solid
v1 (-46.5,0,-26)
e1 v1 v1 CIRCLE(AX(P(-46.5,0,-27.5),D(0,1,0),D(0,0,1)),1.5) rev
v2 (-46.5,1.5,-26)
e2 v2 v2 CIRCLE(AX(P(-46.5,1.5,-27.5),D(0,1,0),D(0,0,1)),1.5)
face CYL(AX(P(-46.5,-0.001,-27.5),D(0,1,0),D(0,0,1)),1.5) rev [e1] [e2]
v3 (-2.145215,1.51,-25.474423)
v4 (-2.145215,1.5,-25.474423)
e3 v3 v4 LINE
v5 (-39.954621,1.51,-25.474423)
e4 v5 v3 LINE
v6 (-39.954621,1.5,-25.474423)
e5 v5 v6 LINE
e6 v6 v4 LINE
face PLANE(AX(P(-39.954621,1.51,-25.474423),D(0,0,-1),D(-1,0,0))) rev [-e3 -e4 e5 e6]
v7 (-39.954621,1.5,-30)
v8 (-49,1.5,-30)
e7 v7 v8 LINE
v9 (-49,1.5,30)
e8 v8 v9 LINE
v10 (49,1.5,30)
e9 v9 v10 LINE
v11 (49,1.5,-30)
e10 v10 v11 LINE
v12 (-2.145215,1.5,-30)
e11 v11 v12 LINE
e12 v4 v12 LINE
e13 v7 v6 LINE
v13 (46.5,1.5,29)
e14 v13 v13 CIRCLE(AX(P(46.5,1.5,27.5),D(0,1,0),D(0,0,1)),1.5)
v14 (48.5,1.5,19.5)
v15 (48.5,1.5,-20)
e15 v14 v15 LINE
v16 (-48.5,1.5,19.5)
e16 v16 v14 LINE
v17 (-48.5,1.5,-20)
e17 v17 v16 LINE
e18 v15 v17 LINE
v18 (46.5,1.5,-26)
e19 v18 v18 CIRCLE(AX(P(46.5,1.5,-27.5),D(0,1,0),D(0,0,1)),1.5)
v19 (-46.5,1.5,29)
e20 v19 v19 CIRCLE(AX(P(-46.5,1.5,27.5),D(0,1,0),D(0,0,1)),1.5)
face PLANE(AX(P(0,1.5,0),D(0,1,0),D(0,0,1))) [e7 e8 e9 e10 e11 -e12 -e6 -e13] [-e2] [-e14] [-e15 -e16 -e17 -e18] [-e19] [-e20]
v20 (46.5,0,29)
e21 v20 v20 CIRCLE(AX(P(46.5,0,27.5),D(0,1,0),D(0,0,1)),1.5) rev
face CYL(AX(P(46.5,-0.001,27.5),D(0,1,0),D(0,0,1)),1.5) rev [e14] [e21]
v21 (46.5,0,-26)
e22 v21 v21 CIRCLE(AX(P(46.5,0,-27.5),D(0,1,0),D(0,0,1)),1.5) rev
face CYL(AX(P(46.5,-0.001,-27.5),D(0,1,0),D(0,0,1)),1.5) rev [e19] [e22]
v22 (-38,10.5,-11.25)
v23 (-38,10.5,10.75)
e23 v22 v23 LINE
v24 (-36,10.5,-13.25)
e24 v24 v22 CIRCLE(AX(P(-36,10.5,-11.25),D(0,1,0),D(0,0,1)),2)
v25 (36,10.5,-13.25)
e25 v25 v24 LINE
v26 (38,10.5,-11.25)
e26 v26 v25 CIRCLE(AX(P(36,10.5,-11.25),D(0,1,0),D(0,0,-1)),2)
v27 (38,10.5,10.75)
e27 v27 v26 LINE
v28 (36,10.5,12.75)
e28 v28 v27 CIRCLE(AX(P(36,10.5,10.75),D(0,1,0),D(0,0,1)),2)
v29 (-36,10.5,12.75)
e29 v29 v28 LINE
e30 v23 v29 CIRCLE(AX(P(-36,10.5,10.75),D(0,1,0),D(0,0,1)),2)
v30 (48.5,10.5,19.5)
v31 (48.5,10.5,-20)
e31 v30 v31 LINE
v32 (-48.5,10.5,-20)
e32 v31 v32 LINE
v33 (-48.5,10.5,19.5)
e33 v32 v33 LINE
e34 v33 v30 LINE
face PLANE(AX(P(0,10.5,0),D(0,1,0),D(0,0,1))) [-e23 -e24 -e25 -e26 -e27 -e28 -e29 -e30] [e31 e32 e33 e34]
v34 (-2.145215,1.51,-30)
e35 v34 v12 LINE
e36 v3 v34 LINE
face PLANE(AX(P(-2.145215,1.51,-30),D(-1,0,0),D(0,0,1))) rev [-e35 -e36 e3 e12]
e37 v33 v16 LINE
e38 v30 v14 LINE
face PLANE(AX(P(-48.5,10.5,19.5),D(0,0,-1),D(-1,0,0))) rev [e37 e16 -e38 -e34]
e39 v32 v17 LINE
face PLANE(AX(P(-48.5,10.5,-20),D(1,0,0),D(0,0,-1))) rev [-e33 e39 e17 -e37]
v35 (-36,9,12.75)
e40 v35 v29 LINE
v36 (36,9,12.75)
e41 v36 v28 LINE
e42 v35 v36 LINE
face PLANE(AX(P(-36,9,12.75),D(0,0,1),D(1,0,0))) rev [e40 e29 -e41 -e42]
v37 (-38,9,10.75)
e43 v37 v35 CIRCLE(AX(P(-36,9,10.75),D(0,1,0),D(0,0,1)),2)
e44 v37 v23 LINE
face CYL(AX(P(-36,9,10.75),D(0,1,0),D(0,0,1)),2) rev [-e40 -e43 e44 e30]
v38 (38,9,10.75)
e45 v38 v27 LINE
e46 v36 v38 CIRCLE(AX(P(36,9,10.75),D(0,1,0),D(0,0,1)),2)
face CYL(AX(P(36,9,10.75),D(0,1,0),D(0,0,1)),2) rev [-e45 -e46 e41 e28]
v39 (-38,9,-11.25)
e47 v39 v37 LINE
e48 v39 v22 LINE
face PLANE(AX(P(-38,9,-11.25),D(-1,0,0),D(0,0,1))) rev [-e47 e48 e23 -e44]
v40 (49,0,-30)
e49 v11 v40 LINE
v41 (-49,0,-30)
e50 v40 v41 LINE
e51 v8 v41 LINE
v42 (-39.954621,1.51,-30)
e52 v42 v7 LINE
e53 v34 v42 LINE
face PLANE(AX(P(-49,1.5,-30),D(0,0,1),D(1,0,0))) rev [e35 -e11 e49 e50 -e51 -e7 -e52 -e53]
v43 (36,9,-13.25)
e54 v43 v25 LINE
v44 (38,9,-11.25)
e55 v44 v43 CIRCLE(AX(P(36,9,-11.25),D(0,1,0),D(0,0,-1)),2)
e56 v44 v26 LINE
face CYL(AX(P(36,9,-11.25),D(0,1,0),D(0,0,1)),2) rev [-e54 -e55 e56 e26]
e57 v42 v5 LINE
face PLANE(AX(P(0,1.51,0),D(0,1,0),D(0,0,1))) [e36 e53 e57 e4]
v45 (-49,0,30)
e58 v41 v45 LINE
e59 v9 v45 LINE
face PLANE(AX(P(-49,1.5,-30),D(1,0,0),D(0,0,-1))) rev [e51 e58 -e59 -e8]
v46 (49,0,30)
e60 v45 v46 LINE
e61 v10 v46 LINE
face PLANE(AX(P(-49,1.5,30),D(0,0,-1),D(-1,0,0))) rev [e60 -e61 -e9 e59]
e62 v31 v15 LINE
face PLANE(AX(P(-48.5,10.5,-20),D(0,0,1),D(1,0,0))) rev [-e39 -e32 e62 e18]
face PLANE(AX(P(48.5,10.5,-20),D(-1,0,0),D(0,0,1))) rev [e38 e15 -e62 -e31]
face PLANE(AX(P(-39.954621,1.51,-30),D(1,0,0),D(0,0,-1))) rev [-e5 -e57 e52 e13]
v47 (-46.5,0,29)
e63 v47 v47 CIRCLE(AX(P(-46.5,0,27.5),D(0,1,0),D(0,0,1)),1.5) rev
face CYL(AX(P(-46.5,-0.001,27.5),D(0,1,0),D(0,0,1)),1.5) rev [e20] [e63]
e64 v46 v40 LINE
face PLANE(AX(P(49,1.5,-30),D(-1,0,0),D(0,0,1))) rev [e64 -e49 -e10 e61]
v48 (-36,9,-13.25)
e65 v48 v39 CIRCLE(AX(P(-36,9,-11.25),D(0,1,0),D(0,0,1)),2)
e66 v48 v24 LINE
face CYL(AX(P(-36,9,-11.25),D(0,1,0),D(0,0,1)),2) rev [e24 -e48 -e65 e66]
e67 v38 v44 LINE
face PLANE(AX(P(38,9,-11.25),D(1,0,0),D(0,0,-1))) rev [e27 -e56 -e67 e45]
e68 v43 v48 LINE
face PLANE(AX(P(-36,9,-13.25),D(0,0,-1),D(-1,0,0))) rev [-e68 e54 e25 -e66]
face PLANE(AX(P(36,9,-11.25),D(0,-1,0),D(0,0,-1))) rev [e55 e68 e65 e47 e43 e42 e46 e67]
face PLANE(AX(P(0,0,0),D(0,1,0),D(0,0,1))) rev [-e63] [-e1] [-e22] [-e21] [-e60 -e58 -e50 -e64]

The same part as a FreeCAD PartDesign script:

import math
import FreeCAD as App
import Part
import Sketcher
Q = App.Units.Quantity

doc = App.newDocument("Part")
body = doc.addObject("PartDesign::Body", "Body")

sketch1 = doc.addObject("Sketcher::SketchObject", "Sketch")
body.addObject(sketch1)
sketch1.AttachmentSupport = (doc.XZ_Plane, [""])
sketch1.MapMode = "FlatFace"
sketch1.addGeometry([
    Part.LineSegment(App.Vector(-49, -30, 0), App.Vector(-49, 30, 0)),
    Part.LineSegment(App.Vector(-49, 30, 0), App.Vector(49, 30, 0)),
    Part.LineSegment(App.Vector(49, 30, 0), App.Vector(49, -30, 0)),
    Part.LineSegment(App.Vector(49, -30, 0), App.Vector(-49, -30, 0)),
], False)
sketch1.addConstraint([
    Sketcher.Constraint("Coincident", 0, 2, 1, 1),
    Sketcher.Constraint("Coincident", 1, 2, 2, 1),
    Sketcher.Constraint("Coincident", 2, 2, 3, 1),
    Sketcher.Constraint("Coincident", 3, 2, 0, 1),
    Sketcher.Constraint("Vertical", 0),
    Sketcher.Constraint("Horizontal", 1),
    Sketcher.Constraint("Vertical", 2),
    Sketcher.Constraint("Horizontal", 3),
    Sketcher.Constraint("Symmetric", 0, 2, 2, 2, -1, 1),
    Sketcher.Constraint("DistanceX", 1, 1, 1, 2, Q("98 mm")),
    Sketcher.Constraint("DistanceY", 0, 1, 0, 2, Q("60 mm")),
])
pad1 = doc.addObject("PartDesign::Pad", "Pad")
body.addObject(pad1)
pad1.Profile = sketch1
pad1.Length = 1.5
pad1.Reversed = True

sketch2 = doc.addObject("Sketcher::SketchObject", "Sketch001")
body.addObject(sketch2)
sketch2.AttachmentSupport = (doc.XZ_Plane, [""])
sketch2.MapMode = "FlatFace"
sketch2.AttachmentOffset = App.Placement(App.Vector(0, 0, -1.5), App.Rotation())
sketch2.addGeometry([
    Part.LineSegment(App.Vector(-48.5, -20, 0), App.Vector(-48.5, 19.5, 0)),
    Part.LineSegment(App.Vector(-48.5, 19.5, 0), App.Vector(48.5, 19.5, 0)),
    Part.LineSegment(App.Vector(48.5, 19.5, 0), App.Vector(48.5, -20, 0)),
    Part.LineSegment(App.Vector(48.5, -20, 0), App.Vector(-48.5, -20, 0)),
], False)
sketch2.addConstraint([
    Sketcher.Constraint("Coincident", 0, 2, 1, 1),
    Sketcher.Constraint("Coincident", 1, 2, 2, 1),
    Sketcher.Constraint("Coincident", 2, 2, 3, 1),
    Sketcher.Constraint("Coincident", 3, 2, 0, 1),
    Sketcher.Constraint("Vertical", 0),
    Sketcher.Constraint("Horizontal", 1),
    Sketcher.Constraint("Vertical", 2),
    Sketcher.Constraint("Horizontal", 3),
    Sketcher.Constraint("DistanceX", 1, 1, 1, 2, Q("97 mm")),
    Sketcher.Constraint("DistanceY", 0, 1, 0, 2, Q("39.5 mm")),
    Sketcher.Constraint("DistanceY", 2, 2, -1, 1, Q("20 mm")),
    Sketcher.Constraint("DistanceX", 0, 2, -1, 1, Q("48.5 mm")),
])
pad2 = doc.addObject("PartDesign::Pad", "Pad001")
body.addObject(pad2)
pad2.Profile = sketch2
pad2.Length = 9
pad2.Reversed = True

sketch3 = doc.addObject("Sketcher::SketchObject", "Sketch002")
body.addObject(sketch3)
sketch3.AttachmentSupport = (doc.XZ_Plane, [""])
sketch3.MapMode = "FlatFace"
sketch3.AttachmentOffset = App.Placement(App.Vector(0, 0, -10.5), App.Rotation())
sketch3.addGeometry([
    Part.LineSegment(App.Vector(36, -13.25, 0), App.Vector(-36, -13.25, 0)),
    Part.ArcOfCircle(Part.Circle(App.Vector(-36, -11.25, 0), App.Vector(0, 0, 1), 2), math.radians(-180), math.radians(-90)),
    Part.LineSegment(App.Vector(-38, -11.25, 0), App.Vector(-38, 10.75, 0)),
    Part.ArcOfCircle(Part.Circle(App.Vector(-36, 10.75, 0), App.Vector(0, 0, 1), 2), math.radians(90), math.radians(180)),
    Part.LineSegment(App.Vector(-36, 12.75, 0), App.Vector(36, 12.75, 0)),
    Part.ArcOfCircle(Part.Circle(App.Vector(36, 10.75, 0), App.Vector(0, 0, 1), 2), math.radians(0), math.radians(90)),
    Part.LineSegment(App.Vector(38, 10.75, 0), App.Vector(38, -11.25, 0)),
    Part.ArcOfCircle(Part.Circle(App.Vector(36, -11.25, 0), App.Vector(0, 0, 1), 2), math.radians(-90), math.radians(0)),
], False)
sketch3.addConstraint([
    Sketcher.Constraint("Tangent", 0, 2, 1, 2),
    Sketcher.Constraint("Tangent", 1, 1, 2, 1),
    Sketcher.Constraint("Tangent", 2, 2, 3, 2),
    Sketcher.Constraint("Tangent", 3, 1, 4, 1),
    Sketcher.Constraint("Tangent", 4, 2, 5, 2),
    Sketcher.Constraint("Tangent", 5, 1, 6, 1),
    Sketcher.Constraint("Tangent", 6, 2, 7, 2),
    Sketcher.Constraint("Tangent", 7, 1, 0, 1),
    Sketcher.Constraint("Horizontal", 0),
    Sketcher.Constraint("Vertical", 2),
    Sketcher.Constraint("Horizontal", 4),
    Sketcher.Constraint("Vertical", 6),
    Sketcher.Constraint("Equal", 1, 3),
    Sketcher.Constraint("Equal", 3, 5),
    Sketcher.Constraint("Equal", 5, 7),
    Sketcher.Constraint("Radius", 1, Q("2 mm")),
    Sketcher.Constraint("DistanceX", 0, 2, 0, 1, Q("72 mm")),
    Sketcher.Constraint("DistanceY", 2, 1, 2, 2, Q("22 mm")),
    Sketcher.Constraint("DistanceX", 1, 3, -1, 1, Q("36 mm")),
    Sketcher.Constraint("DistanceY", 1, 3, -1, 1, Q("11.25 mm")),
])
pocket1 = doc.addObject("PartDesign::Pocket", "Pocket")
body.addObject(pocket1)
pocket1.Profile = sketch3
pocket1.Length = 1.5
pocket1.Reversed = True

sketch4 = doc.addObject("Sketcher::SketchObject", "Sketch003")
body.addObject(sketch4)
sketch4.AttachmentSupport = (doc.XZ_Plane, [""])
sketch4.MapMode = "FlatFace"
sketch4.AttachmentOffset = App.Placement(App.Vector(0, 0, -1.5), App.Rotation())
sketch4.addGeometry(Part.Circle(App.Vector(-46.5, -27.5, 0), App.Vector(0, 0, 1), 1.5), False)
sketch4.addConstraint([
    Sketcher.Constraint("Diameter", 0, Q("3 mm")),
    Sketcher.Constraint("DistanceX", 0, 3, -1, 1, Q("46.5 mm")),
    Sketcher.Constraint("DistanceY", 0, 3, -1, 1, Q("27.5 mm")),
])
pocket2 = doc.addObject("PartDesign::Pocket", "Pocket001")
body.addObject(pocket2)
pocket2.Profile = sketch4
pocket2.Type = "UpToFirst"
pocket2.Reversed = True

sketch5 = doc.addObject("Sketcher::SketchObject", "Sketch004")
body.addObject(sketch5)
sketch5.AttachmentSupport = (doc.XZ_Plane, [""])
sketch5.MapMode = "FlatFace"
sketch5.AttachmentOffset = App.Placement(App.Vector(0, 0, -1.5), App.Rotation())
sketch5.addGeometry(Part.Circle(App.Vector(46.5, -27.5, 0), App.Vector(0, 0, 1), 1.5), False)
sketch5.addConstraint([
    Sketcher.Constraint("Diameter", 0, Q("3 mm")),
    Sketcher.Constraint("DistanceX", -1, 1, 0, 3, Q("46.5 mm")),
    Sketcher.Constraint("DistanceY", 0, 3, -1, 1, Q("27.5 mm")),
])
pocket3 = doc.addObject("PartDesign::Pocket", "Pocket002")
body.addObject(pocket3)
pocket3.Profile = sketch5
pocket3.Type = "UpToFirst"
pocket3.Reversed = True

sketch6 = doc.addObject("Sketcher::SketchObject", "Sketch005")
body.addObject(sketch6)
sketch6.AttachmentSupport = (doc.XZ_Plane, [""])
sketch6.MapMode = "FlatFace"
sketch6.AttachmentOffset = App.Placement(App.Vector(0, 0, -1.5), App.Rotation())
sketch6.addGeometry(Part.Circle(App.Vector(46.5, 27.5, 0), App.Vector(0, 0, 1), 1.5), False)
sketch6.addConstraint([
    Sketcher.Constraint("Diameter", 0, Q("3 mm")),
    Sketcher.Constraint("DistanceX", -1, 1, 0, 3, Q("46.5 mm")),
    Sketcher.Constraint("DistanceY", -1, 1, 0, 3, Q("27.5 mm")),
])
pocket4 = doc.addObject("PartDesign::Pocket", "Pocket003")
body.addObject(pocket4)
pocket4.Profile = sketch6
pocket4.Type = "UpToFirst"
pocket4.Reversed = True

sketch7 = doc.addObject("Sketcher::SketchObject", "Sketch006")
body.addObject(sketch7)
sketch7.AttachmentSupport = (doc.XZ_Plane, [""])
sketch7.MapMode = "FlatFace"
sketch7.AttachmentOffset = App.Placement(App.Vector(0, 0, -1.5), App.Rotation())
sketch7.addGeometry(Part.Circle(App.Vector(-46.5, 27.5, 0), App.Vector(0, 0, 1), 1.5), False)
sketch7.addConstraint([
    Sketcher.Constraint("Diameter", 0, Q("3 mm")),
    Sketcher.Constraint("DistanceX", 0, 3, -1, 1, Q("46.5 mm")),
    Sketcher.Constraint("DistanceY", -1, 1, 0, 3, Q("27.5 mm")),
])
pocket5 = doc.addObject("PartDesign::Pocket", "Pocket004")
body.addObject(pocket5)
pocket5.Profile = sketch7
pocket5.Type = "UpToFirst"
pocket5.Reversed = True

sketch8 = doc.addObject("Sketcher::SketchObject", "Sketch007")
body.addObject(sketch8)
sketch8.AttachmentSupport = (doc.XZ_Plane, [""])
sketch8.MapMode = "FlatFace"
sketch8.AttachmentOffset = App.Placement(App.Vector(0, 0, -1.5), App.Rotation())
sketch8.addGeometry([
    Part.LineSegment(App.Vector(-39.954621, -30, 0), App.Vector(-39.954621, -25.474423, 0)),
    Part.LineSegment(App.Vector(-39.954621, -25.474423, 0), App.Vector(-2.145215, -25.474423, 0)),
    Part.LineSegment(App.Vector(-2.145215, -25.474423, 0), App.Vector(-2.145215, -30, 0)),
    Part.LineSegment(App.Vector(-2.145215, -30, 0), App.Vector(-39.954621, -30, 0)),
], False)
sketch8.addConstraint([
    Sketcher.Constraint("Coincident", 0, 2, 1, 1),
    Sketcher.Constraint("Coincident", 1, 2, 2, 1),
    Sketcher.Constraint("Coincident", 2, 2, 3, 1),
    Sketcher.Constraint("Coincident", 3, 2, 0, 1),
    Sketcher.Constraint("Vertical", 0),
    Sketcher.Constraint("Horizontal", 1),
    Sketcher.Constraint("Vertical", 2),
    Sketcher.Constraint("Horizontal", 3),
    Sketcher.Constraint("DistanceY", 2, 2, -1, 1, Q("30 mm")),
    Sketcher.Constraint("DistanceX", 1, 1, 1, 2, Q("37.809407 mm")),
    Sketcher.Constraint("DistanceY", 0, 1, 0, 2, Q("4.525577 mm")),
    Sketcher.Constraint("DistanceX", 0, 2, -1, 1, Q("39.954621 mm")),
])
pad3 = doc.addObject("PartDesign::Pad", "Pad002")
body.addObject(pad3)
pad3.Profile = sketch8
pad3.Length = 0.01
pad3.Reversed = True

doc.recompute()
